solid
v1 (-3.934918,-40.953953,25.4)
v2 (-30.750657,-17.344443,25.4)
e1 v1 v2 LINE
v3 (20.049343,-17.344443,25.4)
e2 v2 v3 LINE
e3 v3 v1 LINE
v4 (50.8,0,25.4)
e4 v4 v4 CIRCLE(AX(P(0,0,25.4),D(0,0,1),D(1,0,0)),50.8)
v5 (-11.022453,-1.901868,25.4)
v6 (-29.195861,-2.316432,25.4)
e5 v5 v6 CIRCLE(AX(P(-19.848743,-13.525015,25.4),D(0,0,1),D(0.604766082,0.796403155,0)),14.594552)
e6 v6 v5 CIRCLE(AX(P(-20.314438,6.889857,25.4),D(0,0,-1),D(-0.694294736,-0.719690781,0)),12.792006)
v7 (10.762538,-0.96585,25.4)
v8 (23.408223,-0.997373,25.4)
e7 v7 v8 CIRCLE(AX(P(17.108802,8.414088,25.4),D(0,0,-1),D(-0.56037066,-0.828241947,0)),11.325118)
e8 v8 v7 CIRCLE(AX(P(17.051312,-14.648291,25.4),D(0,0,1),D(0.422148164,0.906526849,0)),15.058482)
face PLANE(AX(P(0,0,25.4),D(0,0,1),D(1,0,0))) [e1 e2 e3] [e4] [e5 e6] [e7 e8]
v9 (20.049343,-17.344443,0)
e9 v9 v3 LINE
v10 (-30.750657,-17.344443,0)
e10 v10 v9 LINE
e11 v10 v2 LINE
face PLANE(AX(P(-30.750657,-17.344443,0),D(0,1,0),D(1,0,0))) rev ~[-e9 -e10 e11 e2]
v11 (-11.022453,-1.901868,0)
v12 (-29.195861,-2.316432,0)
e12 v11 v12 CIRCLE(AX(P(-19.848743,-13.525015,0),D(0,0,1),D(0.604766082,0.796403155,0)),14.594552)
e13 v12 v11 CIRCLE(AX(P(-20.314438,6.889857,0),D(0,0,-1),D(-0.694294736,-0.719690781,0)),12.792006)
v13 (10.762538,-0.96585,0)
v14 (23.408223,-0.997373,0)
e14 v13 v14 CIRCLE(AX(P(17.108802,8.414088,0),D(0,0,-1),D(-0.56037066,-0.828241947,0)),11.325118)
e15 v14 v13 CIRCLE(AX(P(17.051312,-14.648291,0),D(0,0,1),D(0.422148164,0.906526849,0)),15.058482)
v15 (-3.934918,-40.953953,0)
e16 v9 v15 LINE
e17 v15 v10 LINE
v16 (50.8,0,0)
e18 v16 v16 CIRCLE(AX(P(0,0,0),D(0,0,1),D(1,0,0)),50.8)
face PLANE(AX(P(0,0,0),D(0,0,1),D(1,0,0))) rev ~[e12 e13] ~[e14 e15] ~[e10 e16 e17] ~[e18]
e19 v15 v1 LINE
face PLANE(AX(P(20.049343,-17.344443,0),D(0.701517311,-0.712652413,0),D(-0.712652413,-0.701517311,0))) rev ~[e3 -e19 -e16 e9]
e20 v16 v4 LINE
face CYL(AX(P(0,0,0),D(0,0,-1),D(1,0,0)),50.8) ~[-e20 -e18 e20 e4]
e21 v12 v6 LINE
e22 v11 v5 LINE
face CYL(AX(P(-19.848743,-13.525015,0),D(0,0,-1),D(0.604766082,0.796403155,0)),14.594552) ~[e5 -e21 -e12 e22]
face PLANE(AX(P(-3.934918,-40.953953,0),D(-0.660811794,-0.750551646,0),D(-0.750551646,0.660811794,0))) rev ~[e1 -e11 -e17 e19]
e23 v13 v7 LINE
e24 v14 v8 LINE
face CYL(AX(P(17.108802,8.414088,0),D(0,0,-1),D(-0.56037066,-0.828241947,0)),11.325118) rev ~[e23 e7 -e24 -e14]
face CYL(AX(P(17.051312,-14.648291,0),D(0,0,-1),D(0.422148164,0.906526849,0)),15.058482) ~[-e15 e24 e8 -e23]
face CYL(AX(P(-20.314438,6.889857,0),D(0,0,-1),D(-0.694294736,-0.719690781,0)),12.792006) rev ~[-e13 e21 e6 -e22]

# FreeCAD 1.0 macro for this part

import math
import FreeCAD as App
import Part
import Sketcher
from FreeCAD import Vector
Q = App.Units.Quantity

doc = App.newDocument("Part")
body = doc.addObject("PartDesign::Body", "Body")

# Sketch on XY plane
sketch1 = body.newObject("Sketcher::SketchObject", "Sketch")
sketch1.AttachmentSupport = (doc.getObject("XY_Plane"), [""])
sketch1.MapMode = "FlatFace"
sketch1.addGeometry(Part.Circle(Vector(0, 0, 0), Vector(0, 0, 1), 51), False)
sketch1.addGeometry(Part.LineSegment(Vector(20, -17, 0), Vector(-4, -41, 0)), False)
sketch1.addGeometry(Part.LineSegment(Vector(-4, -41, 0), Vector(-31, -17, 0)), False)
sketch1.addGeometry(Part.LineSegment(Vector(-31, -17, 0), Vector(20, -17, 0)), False)
sketch1.addGeometry(Part.ArcOfCircle(Part.Circle(Vector(-20, -14, 0), Vector(0, 0, 1), 15), math.radians(53), math.radians(130)), False)
sketch1.addGeometry(Part.ArcOfCircle(Part.Circle(Vector(-20, 7, 0), Vector(0, 0, 1), 13), math.radians(-43), math.radians(226)), False)
sketch1.addGeometry(Part.ArcOfCircle(Part.Circle(Vector(17, -15, 0), Vector(0, 0, 1), 15), math.radians(65), math.radians(115)), False)
sketch1.addGeometry(Part.ArcOfCircle(Part.Circle(Vector(17, 8, 0), Vector(0, 0, 1), 11), math.radians(-56), math.radians(236)), False)
sketch1.addConstraint(Sketcher.Constraint("Coincident", 1, 2, 2, 1))
sketch1.addConstraint(Sketcher.Constraint("Coincident", 2, 2, 3, 1))
sketch1.addConstraint(Sketcher.Constraint("Coincident", 3, 2, 1, 1))
sketch1.addConstraint(Sketcher.Constraint("Coincident", 4, 1, 5, 1))
sketch1.addConstraint(Sketcher.Constraint("Coincident", 5, 2, 4, 2))
sketch1.addConstraint(Sketcher.Constraint("Coincident", 6, 1, 7, 1))
sketch1.addConstraint(Sketcher.Constraint("Coincident", 7, 2, 6, 2))
sketch1.addConstraint(Sketcher.Constraint("Horizontal", 3))
sketch1.addConstraint(Sketcher.Constraint("Coincident", 0, 3, -1, 1))
sketch1.addConstraint(Sketcher.Constraint("Diameter", 0, Q("4 in")))
sketch1.addConstraint(Sketcher.Constraint("DistanceX", 3, 1, 3, 2, Q("2 in")))
sketch1.addConstraint(Sketcher.Constraint("Radius", 7, Q("11.325118 mm")))
sketch1.addConstraint(Sketcher.Constraint("Radius", 4, Q("14.594552 mm")))
sketch1.addConstraint(Sketcher.Constraint("Radius", 5, Q("12.792006 mm")))
sketch1.addConstraint(Sketcher.Constraint("Radius", 6, Q("15.058482 mm")))
sketch1.addConstraint(Sketcher.Constraint("DistanceX", -1, 1, 7, 3, Q("17.108802 mm")))
sketch1.addConstraint(Sketcher.Constraint("DistanceY", 2, 2, 5, 3, Q("24.2343 mm")))
sketch1.addConstraint(Sketcher.Constraint("Distance", 1, Q("33.654921 mm")))
sketch1.addConstraint(Sketcher.Constraint("Distance", 2, Q("35.72804 mm")))
sketch1.addConstraint(Sketcher.Constraint("DistanceX", 5, 3, -1, 1, Q("20.314438 mm")))
sketch1.addConstraint(Sketcher.Constraint("DistanceY", 6, 3, -1, 1, Q("14.648291 mm")))
sketch1.addConstraint(Sketcher.Constraint("DistanceX", 1, 2, -1, 1, Q("3.934918 mm")))
sketch1.addConstraint(Sketcher.Constraint("DistanceY", 4, 1, -1, 1, Q("1.901868 mm")))
sketch1.addConstraint(Sketcher.Constraint("DistanceX", 5, 2, -1, 1, Q("29.195861 mm")))
sketch1.addConstraint(Sketcher.Constraint("DistanceY", 5, 2, -1, 1, Q("2.316432 mm")))
sketch1.addConstraint(Sketcher.Constraint("DistanceX", -1, 1, 7, 2, Q("10.762538 mm")))
sketch1.addConstraint(Sketcher.Constraint("DistanceY", 7, 2, -1, 1, Q("0.96585 mm")))
pad1 = body.newObject("PartDesign::Pad", "Pad")
pad1.Profile = sketch1
pad1.Length = Q("1 in")

doc.recompute()
